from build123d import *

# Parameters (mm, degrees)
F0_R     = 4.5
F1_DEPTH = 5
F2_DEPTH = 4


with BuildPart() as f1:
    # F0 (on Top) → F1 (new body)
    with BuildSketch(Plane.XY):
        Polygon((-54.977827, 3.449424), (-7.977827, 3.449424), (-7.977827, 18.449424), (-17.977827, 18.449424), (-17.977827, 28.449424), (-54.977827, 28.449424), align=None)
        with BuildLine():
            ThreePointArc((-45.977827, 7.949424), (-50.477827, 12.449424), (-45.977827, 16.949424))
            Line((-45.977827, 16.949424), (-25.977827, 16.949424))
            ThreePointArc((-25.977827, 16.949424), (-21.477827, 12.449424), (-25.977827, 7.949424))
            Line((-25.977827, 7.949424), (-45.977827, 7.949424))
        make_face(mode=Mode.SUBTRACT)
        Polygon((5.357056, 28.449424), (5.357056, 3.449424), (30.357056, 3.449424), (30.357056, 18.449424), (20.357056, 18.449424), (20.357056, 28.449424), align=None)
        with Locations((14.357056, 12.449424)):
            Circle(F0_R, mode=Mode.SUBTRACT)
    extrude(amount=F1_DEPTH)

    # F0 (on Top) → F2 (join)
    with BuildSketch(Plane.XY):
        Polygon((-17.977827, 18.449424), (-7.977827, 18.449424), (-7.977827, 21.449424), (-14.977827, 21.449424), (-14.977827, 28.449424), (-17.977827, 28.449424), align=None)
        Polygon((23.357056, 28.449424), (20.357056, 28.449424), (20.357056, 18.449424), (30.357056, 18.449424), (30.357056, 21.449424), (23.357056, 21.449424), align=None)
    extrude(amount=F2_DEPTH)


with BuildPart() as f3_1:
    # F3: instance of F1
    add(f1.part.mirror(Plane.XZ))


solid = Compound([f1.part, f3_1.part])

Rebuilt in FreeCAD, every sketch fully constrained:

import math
import FreeCAD as App
import Part
import Sketcher

V = App.Vector
Q = App.Units.Quantity


def add_polygon(sketch, points):
    """Adds a closed chain of lines whose ends are joined by coincident constraints."""
    first, n = sketch.GeometryCount, len(points)
    for a, b in zip(points, points[1:] + points[:1]):
        sketch.addGeometry(Part.LineSegment(App.Vector(*a, 0), App.Vector(*b, 0)), False)
    for i in range(n):
        sketch.addConstraint(Sketcher.Constraint("Coincident", first + i, 2, first + (i + 1) % n, 1))

doc = App.newDocument("Part")
params = doc.addObject("Spreadsheet::Sheet", "Params")
for row, (alias, value) in enumerate([
    ("sketch1_diameter", "9 mm"),
    ("sketch1_width", "47 mm"),
    ("sketch1_width2", "10 mm"),
    ("sketch1_width3", "20 mm"),
    ("sketch1_width4", "25 mm"),
    ("pad1_length", "5 mm"),
    ("sketch2_width", "10 mm"),
    ("sketch2_width2", "7 mm"),
    ("pad2_length", "4 mm"),
], start=1):
    params.set(f"A{row}", alias)
    params.set(f"B{row}", "=" + value)
    params.setAlias(f"B{row}", alias)

body = doc.addObject("PartDesign::Body", "Body")
body.AllowCompound = True

sketch1 = body.newObject("Sketcher::SketchObject", "Sketch")
sketch1.AttachmentSupport = (doc.getObject("XY_Plane"), [""])
sketch1.MapMode = "FlatFace"
add_polygon(sketch1, [(-55, 3.4), (-8, 3.4), (-8, 18.4), (-18, 18.4), (-18, 28.4), (-55, 28.4)])
sketch1.addGeometry(Part.LineSegment(V(-26, 7.9, 0), V(-46, 7.9, 0)), False)
sketch1.addGeometry(Part.ArcOfCircle(Part.Circle(V(-46, 12.4, 0), V(0, 0, 1), 4.5), math.radians(90), math.radians(270)), False)
sketch1.addGeometry(Part.LineSegment(V(-46, 16.9, 0), V(-26, 16.9, 0)), False)
sketch1.addGeometry(Part.ArcOfCircle(Part.Circle(V(-26, 12.4, 0), V(0, 0, 1), 4.5), math.radians(-90), math.radians(90)), False)
add_polygon(sketch1, [(5.4, 28.4), (5.4, 3.4), (30.4, 3.4), (30.4, 18.4), (20.4, 18.4), (20.4, 28.4)])
sketch1.addGeometry(Part.Circle(V(14.4, 12.4, 0), V(0, 0, 1), 4.5), False)
sketch1.addConstraint(Sketcher.Constraint("Tangent", 6, 2, 7, 2))
sketch1.addConstraint(Sketcher.Constraint("Tangent", 7, 1, 8, 1))
sketch1.addConstraint(Sketcher.Constraint("Tangent", 8, 2, 9, 2))
sketch1.addConstraint(Sketcher.Constraint("Tangent", 9, 1, 6, 1))
sketch1.addConstraint(Sketcher.Constraint("Horizontal", 0))
sketch1.addConstraint(Sketcher.Constraint("Vertical", 1))
sketch1.addConstraint(Sketcher.Constraint("Horizontal", 2))
sketch1.addConstraint(Sketcher.Constraint("Vertical", 3))
sketch1.addConstraint(Sketcher.Constraint("Horizontal", 4))
sketch1.addConstraint(Sketcher.Constraint("Vertical", 5))
sketch1.addConstraint(Sketcher.Constraint("Horizontal", 6))
sketch1.addConstraint(Sketcher.Constraint("Horizontal", 8))
sketch1.addConstraint(Sketcher.Constraint("Vertical", 10))
sketch1.addConstraint(Sketcher.Constraint("Horizontal", 11))
sketch1.addConstraint(Sketcher.Constraint("Vertical", 12))
sketch1.addConstraint(Sketcher.Constraint("Horizontal", 13))
sketch1.addConstraint(Sketcher.Constraint("Vertical", 14))
sketch1.addConstraint(Sketcher.Constraint("Horizontal", 15))
sketch1.addConstraint(Sketcher.Constraint("Equal", 9, 16))
sketch1.addConstraint(Sketcher.Constraint("Horizontal", 9, 3, 16, 3))
sketch1.addConstraint(Sketcher.Constraint("Horizontal", 5, 2, 10, 2))
sketch1.addConstraint(Sketcher.Constraint("Horizontal", 2, 2, 12, 2))
sketch1.addConstraint(Sketcher.Constraint("Horizontal", 4, 2, 14, 2))
sketch1.addConstraint(Sketcher.Constraint("Equal", 2, 13))
sketch1.addConstraint(Sketcher.Constraint("Equal", 15, 1))
sketch1.addConstraint(Sketcher.Constraint("Equal", 13, 3))
sketch1.addConstraint(Sketcher.Constraint("Diameter", 16, Q("9 mm")))
sketch1.addConstraint(Sketcher.Constraint("DistanceX", 0, 1, 0, 2, Q("47 mm")))
sketch1.addConstraint(Sketcher.Constraint("DistanceX", 2, 2, 2, 1, Q("10 mm")))
sketch1.addConstraint(Sketcher.Constraint("DistanceX", 6, 2, 6, 1, Q("20 mm")))
sketch1.addConstraint(Sketcher.Constraint("DistanceX", 11, 1, 11, 2, Q("25 mm")))
sketch1.addConstraint(Sketcher.Constraint("DistanceX", 9, 3, 0, 2, Q("18 mm")))
sketch1.addConstraint(Sketcher.Constraint("DistanceY", 0, 2, 9, 3, Q("9 mm")))
sketch1.addConstraint(Sketcher.Constraint("DistanceX", 10, 2, 16, 3, Q("9 mm")))
sketch1.addConstraint(Sketcher.Constraint("DistanceX", 7, 3, -1, 1, Q("45.977827 mm")))
sketch1.addConstraint(Sketcher.Constraint("DistanceY", -1, 1, 7, 3, Q("12.449424 mm")))
sketch1.addConstraint(Sketcher.Constraint("DistanceX", -1, 1, 16, 3, Q("14.357056 mm")))
sketch1.setExpression("Constraints[38]", "Params.sketch1_diameter")
sketch1.setExpression("Constraints[39]", "Params.sketch1_width")
sketch1.setExpression("Constraints[40]", "Params.sketch1_width2")
sketch1.setExpression("Constraints[41]", "Params.sketch1_width3")
sketch1.setExpression("Constraints[42]", "Params.sketch1_width4")
pad1 = body.newObject("PartDesign::Pad", "Pad")
pad1.Profile = sketch1
pad1.setExpression("Length", "Params.pad1_length")

sketch2 = body.newObject("Sketcher::SketchObject", "Sketch001")
sketch2.AttachmentSupport = (doc.getObject("XY_Plane"), [""])
sketch2.MapMode = "FlatFace"
add_polygon(sketch2, [(-18, 18.4), (-8, 18.4), (-8, 21.4), (-15, 21.4), (-15, 28.4), (-18, 28.4)])
add_polygon(sketch2, [(23.4, 28.4), (20.4, 28.4), (20.4, 18.4), (30.4, 18.4), (30.4, 21.4), (23.4, 21.4)])
sketch2.addConstraint(Sketcher.Constraint("Horizontal", 0))
sketch2.addConstraint(Sketcher.Constraint("Vertical", 1))
sketch2.addConstraint(Sketcher.Constraint("Horizontal", 2))
sketch2.addConstraint(Sketcher.Constraint("Vertical", 3))
sketch2.addConstraint(Sketcher.Constraint("Horizontal", 4))
sketch2.addConstraint(Sketcher.Constraint("Vertical", 5))
sketch2.addConstraint(Sketcher.Constraint("Horizontal", 6))
sketch2.addConstraint(Sketcher.Constraint("Vertical", 7))
sketch2.addConstraint(Sketcher.Constraint("Horizontal", 8))
sketch2.addConstraint(Sketcher.Constraint("Vertical", 9))
sketch2.addConstraint(Sketcher.Constraint("Horizontal", 10))
sketch2.addConstraint(Sketcher.Constraint("Vertical", 11))
sketch2.addConstraint(Sketcher.Constraint("Horizontal", 4, 2, 6, 2))
sketch2.addConstraint(Sketcher.Constraint("Horizontal", 5, 2, 7, 2))
sketch2.addConstraint(Sketcher.Constraint("Horizontal", 2, 2, 9, 2))
sketch2.addConstraint(Sketcher.Constraint("Equal", 4, 6))
sketch2.addConstraint(Sketcher.Constraint("Equal", 0, 8))
sketch2.addConstraint(Sketcher.Constraint("Equal", 6, 1))
sketch2.addConstraint(Sketcher.Constraint("Equal", 10, 3))
sketch2.addConstraint(Sketcher.Constraint("DistanceX", 0, 1, 0, 2, Q("10 mm")))
sketch2.addConstraint(Sketcher.Constraint("DistanceX", 2, 2, 2, 1, Q("7 mm")))
sketch2.addConstraint(Sketcher.Constraint("DistanceX", 0, 2, -1, 1, Q("7.977827 mm")))
sketch2.addConstraint(Sketcher.Constraint("DistanceY", -1, 1, 0, 2, Q("18.449424 mm")))
sketch2.addConstraint(Sketcher.Constraint("DistanceX", -1, 1, 6, 2, Q("20.357056 mm")))
sketch2.setExpression("Constraints[31]", "Params.sketch2_width")
sketch2.setExpression("Constraints[32]", "Params.sketch2_width2")
pad2 = body.newObject("PartDesign::Pad", "Pad001")
pad2.Profile = sketch2
pad2.setExpression("Length", "Params.pad2_length")
body2 = doc.addObject("PartDesign::Body", "Body001")
body2.AllowCompound = True
doc.recompute()

mirroring = doc.addObject("Part::Mirroring", "Mirroring")
mirroring.Source = body
mirroring.Base = V(0, 0, 0)
mirroring.Normal = V(0, -1, 0)
body2.BaseFeature = mirroring
doc.recompute()
mirroring.Visibility = False

doc.recompute()
